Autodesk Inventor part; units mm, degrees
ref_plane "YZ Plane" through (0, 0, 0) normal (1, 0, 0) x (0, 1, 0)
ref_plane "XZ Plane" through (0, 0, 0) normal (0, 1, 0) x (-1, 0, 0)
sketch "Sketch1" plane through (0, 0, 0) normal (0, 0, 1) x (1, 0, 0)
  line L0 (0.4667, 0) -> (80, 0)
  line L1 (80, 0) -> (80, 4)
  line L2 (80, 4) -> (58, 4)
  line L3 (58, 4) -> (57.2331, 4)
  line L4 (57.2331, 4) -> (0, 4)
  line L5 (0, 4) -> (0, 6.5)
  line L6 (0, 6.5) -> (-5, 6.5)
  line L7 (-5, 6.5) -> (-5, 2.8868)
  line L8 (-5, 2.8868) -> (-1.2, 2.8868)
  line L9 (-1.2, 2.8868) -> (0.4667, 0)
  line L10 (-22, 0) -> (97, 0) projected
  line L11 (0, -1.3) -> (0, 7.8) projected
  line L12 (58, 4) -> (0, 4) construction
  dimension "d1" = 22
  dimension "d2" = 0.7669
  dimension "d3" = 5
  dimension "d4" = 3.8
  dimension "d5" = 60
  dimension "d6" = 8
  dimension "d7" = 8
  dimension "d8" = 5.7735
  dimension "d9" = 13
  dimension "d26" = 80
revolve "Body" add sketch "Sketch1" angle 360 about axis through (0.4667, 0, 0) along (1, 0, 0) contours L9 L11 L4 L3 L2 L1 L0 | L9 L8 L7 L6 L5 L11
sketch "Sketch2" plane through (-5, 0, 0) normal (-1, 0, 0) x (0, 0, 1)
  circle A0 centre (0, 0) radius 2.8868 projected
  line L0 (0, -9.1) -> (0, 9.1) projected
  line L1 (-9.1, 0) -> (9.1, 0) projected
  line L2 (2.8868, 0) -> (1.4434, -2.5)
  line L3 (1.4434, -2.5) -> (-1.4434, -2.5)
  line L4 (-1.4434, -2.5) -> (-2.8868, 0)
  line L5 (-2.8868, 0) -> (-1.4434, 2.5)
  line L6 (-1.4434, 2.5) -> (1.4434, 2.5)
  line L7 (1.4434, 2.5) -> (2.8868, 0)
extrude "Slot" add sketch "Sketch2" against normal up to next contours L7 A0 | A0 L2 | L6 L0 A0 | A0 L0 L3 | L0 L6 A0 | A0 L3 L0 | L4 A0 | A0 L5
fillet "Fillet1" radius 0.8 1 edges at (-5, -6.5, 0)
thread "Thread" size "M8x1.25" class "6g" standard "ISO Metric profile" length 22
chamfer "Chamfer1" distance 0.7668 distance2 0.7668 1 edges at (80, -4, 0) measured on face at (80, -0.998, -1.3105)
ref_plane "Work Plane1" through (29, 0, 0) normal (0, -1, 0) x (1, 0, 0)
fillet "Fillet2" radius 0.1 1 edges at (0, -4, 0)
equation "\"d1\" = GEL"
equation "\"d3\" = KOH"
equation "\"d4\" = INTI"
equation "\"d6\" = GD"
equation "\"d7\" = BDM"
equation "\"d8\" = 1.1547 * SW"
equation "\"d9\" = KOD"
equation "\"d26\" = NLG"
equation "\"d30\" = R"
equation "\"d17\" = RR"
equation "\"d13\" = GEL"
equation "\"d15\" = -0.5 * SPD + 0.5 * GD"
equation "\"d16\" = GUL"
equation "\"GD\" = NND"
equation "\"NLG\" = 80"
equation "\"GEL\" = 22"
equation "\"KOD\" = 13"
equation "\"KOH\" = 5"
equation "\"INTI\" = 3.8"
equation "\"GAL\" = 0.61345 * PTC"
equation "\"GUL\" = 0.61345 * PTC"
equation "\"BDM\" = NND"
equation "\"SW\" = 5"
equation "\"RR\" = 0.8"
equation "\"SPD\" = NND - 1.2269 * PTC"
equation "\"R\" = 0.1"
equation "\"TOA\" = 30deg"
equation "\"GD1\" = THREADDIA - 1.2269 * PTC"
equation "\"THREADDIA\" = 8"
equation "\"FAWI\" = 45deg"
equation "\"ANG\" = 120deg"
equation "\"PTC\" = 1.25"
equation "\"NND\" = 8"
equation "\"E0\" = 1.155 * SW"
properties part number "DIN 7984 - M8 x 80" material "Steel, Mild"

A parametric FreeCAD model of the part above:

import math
import FreeCAD as App
import Part
import Sketcher

V = App.Vector
Q = App.Units.Quantity


def edges_at(feature, points):
    """Names of the edges that pass closest to the given points."""
    edges = feature.Shape.Edges
    near = lambda p: min(range(len(edges)), key=lambda i: edges[i].distToShape(Part.Vertex(*p))[0])
    return sorted({f"Edge{near(p) + 1}" for p in points})


def add_polygon(sketch, points):
    """Adds a closed chain of lines whose ends are joined by coincident constraints."""
    first, n = sketch.GeometryCount, len(points)
    for a, b in zip(points, points[1:] + points[:1]):
        sketch.addGeometry(Part.LineSegment(App.Vector(*a, 0), App.Vector(*b, 0)), False)
    for i in range(n):
        sketch.addConstraint(Sketcher.Constraint("Coincident", first + i, 2, first + (i + 1) % n, 1))

doc = App.newDocument("Part")
body = doc.addObject("PartDesign::Body", "Body")

sketch1 = body.newObject("Sketcher::SketchObject", "Sketch")
sketch1.AttachmentSupport = (doc.getObject("XY_Plane"), [""])
sketch1.MapMode = "FlatFace"
add_polygon(sketch1, [(0.5, 0), (80, 0), (80, 4), (0, 4), (0, 6.5), (-5, 6.5), (-5, 2.9), (-1.2, 2.9)])
sketch1.addConstraint([
    Sketcher.Constraint("Horizontal", 0),
    Sketcher.Constraint("Vertical", 1),
    Sketcher.Constraint("Horizontal", 2),
    Sketcher.Constraint("Vertical", 3),
    Sketcher.Constraint("Horizontal", 4),
    Sketcher.Constraint("Vertical", 5),
    Sketcher.Constraint("Horizontal", 6),
    Sketcher.Constraint("PointOnObject", 0, 2, -1),
    Sketcher.Constraint("PointOnObject", 2, 2, -2),
    Sketcher.Constraint("DistanceX", 2, 2, 2, 1, 80.0),
    Sketcher.Constraint("DistanceX", 4, 2, 4, 1, 5.0),
    Sketcher.Constraint("Angle", 7, Q("-60 deg")),
    Sketcher.Constraint("DistanceX", 6, 1, 6, 2, 3.8),
    Sketcher.Constraint("DistanceY", 1, 1, 1, 2, 4.0),
    Sketcher.Constraint("DistanceY", 3, 1, 3, 2, 2.5),
    Sketcher.Constraint("DistanceX", 0, 1, 0, 2, 79.5333),
])
revolution = body.newObject("PartDesign::Revolution", "Revolution")
revolution.Profile = sketch1
revolution.ReferenceAxis = (sketch1, ["H_Axis"])
revolution.Angle = 360

sketch2 = body.newObject("Sketcher::SketchObject", "Sketch001")
sketch2.AttachmentSupport = (doc.getObject("YZ_Plane"), [""])
sketch2.MapMode = "FlatFace"
sketch2.AttachmentOffset = App.Placement(V(0, 0, -5), App.Rotation())
sketch2.addGeometry([
    Part.LineSegment(V(2.5, 1.4, 0), V(0, 2.9, 0)),
    Part.ArcOfCircle(Part.Circle(V(0, 0, 0), V(0, 0, 1), 2.9), math.radians(30), math.radians(90)),
    Part.ArcOfCircle(Part.Circle(V(0, 0, 0), V(0, 0, 1), 2.9), math.radians(90), math.radians(150)),
    Part.LineSegment(V(0, 2.9, 0), V(-2.5, 1.4, 0)),
    Part.ArcOfCircle(Part.Circle(V(0, 0, 0), V(0, 0, 1), 2.9), math.radians(-30), math.radians(30)),
    Part.LineSegment(V(2.5, 1.4, 0), V(2.5, -1.4, 0)),
    Part.LineSegment(V(-2.5, 1.4, 0), V(-2.5, -1.4, 0)),
    Part.ArcOfCircle(Part.Circle(V(0, 0, 0), V(0, 0, 1), 2.9), math.radians(150), math.radians(210)),
    Part.LineSegment(V(-2.5, -1.4, 0), V(0, -2.9, 0)),
    Part.ArcOfCircle(Part.Circle(V(0, 0, 0), V(0, 0, 1), 2.9), math.radians(-150), math.radians(-90)),
    Part.ArcOfCircle(Part.Circle(V(0, 0, 0), V(0, 0, 1), 2.9), math.radians(-90), math.radians(-30)),
    Part.LineSegment(V(0, -2.9, 0), V(2.5, -1.4, 0)),
], False)
sketch2.addConstraint([
    Sketcher.Constraint("Coincident", 0, 1, 1, 1),
    Sketcher.Constraint("Coincident", 1, 2, 0, 2),
    Sketcher.Constraint("Coincident", 2, 1, 3, 1),
    Sketcher.Constraint("Coincident", 3, 2, 2, 2),
    Sketcher.Constraint("Coincident", 4, 1, 5, 2),
    Sketcher.Constraint("Coincident", 5, 1, 4, 2),
    Sketcher.Constraint("Coincident", 6, 1, 7, 1),
    Sketcher.Constraint("Coincident", 7, 2, 6, 2),
    Sketcher.Constraint("Coincident", 8, 1, 9, 1),
    Sketcher.Constraint("Coincident", 9, 2, 8, 2),
    Sketcher.Constraint("Coincident", 10, 1, 11, 1),
    Sketcher.Constraint("Coincident", 11, 2, 10, 2),
    Sketcher.Constraint("Vertical", 5),
    Sketcher.Constraint("Vertical", 6),
    Sketcher.Constraint("Coincident", 1, 3, -1, 1),
    Sketcher.Constraint("Coincident", 2, 3, -1, 1),
    Sketcher.Constraint("Coincident", 4, 3, -1, 1),
    Sketcher.Constraint("Coincident", 7, 3, -1, 1),
    Sketcher.Constraint("Coincident", 9, 3, -1, 1),
    Sketcher.Constraint("Coincident", 10, 3, -1, 1),
    Sketcher.Constraint("Coincident", 2, 1, 1, 2),
    Sketcher.Constraint("Coincident", 5, 1, 0, 1),
    Sketcher.Constraint("Coincident", 6, 1, 3, 2),
    Sketcher.Constraint("Coincident", 8, 1, 7, 2),
    Sketcher.Constraint("Coincident", 10, 1, 9, 2),
    Sketcher.Constraint("PointOnObject", 1, 2, -2),
    Sketcher.Constraint("PointOnObject", 9, 2, -2),
    Sketcher.Constraint("Parallel", 0, 8),
    Sketcher.Constraint("Parallel", 3, 11),
    Sketcher.Constraint("Angle", 0, Q("149.9996 deg")),
    Sketcher.Constraint("DistanceX", -1, 1, 0, 1, 2.5),
])
pad1 = body.newObject("PartDesign::Pad", "Pad")
pad1.Profile = sketch2
pad1.Type = "UpToFirst"
doc.recompute()

fillet = body.newObject("PartDesign::Fillet", "Fillet")
fillet.Base = (pad1, edges_at(pad1, [(-5, -6.5, 0)]))
fillet.Radius = 0.8
doc.recompute()

chamfer = body.newObject("PartDesign::Chamfer", "Chamfer")
chamfer.Base = (fillet, edges_at(fillet, [(80, -4, 0)]))
chamfer.ChamferType = "Two distances"
chamfer.Size = 0.7668
chamfer.Size2 = 0.7668
doc.recompute()

fillet2 = body.newObject("PartDesign::Fillet", "Fillet001")
fillet2.Base = (chamfer, edges_at(chamfer, [(0, -4, 0)]))
fillet2.Radius = 0.1

doc.recompute()
